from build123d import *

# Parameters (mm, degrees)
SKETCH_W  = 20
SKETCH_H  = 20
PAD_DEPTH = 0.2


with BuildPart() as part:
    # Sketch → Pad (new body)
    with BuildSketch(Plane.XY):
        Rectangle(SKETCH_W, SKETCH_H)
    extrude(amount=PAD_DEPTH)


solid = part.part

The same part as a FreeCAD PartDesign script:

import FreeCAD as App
import Part
import Sketcher
from FreeCAD import Vector
Q = App.Units.Quantity

doc = App.newDocument("Part")
body = doc.addObject("PartDesign::Body", "Body")

sketch1 = doc.addObject("Sketcher::SketchObject", "Sketch")
body.addObject(sketch1)
sketch1.AttachmentSupport = (doc.XY_Plane, [""])
sketch1.MapMode = "FlatFace"
sketch1.addGeometry([
    Part.LineSegment(Vector(-10, 10, 0), Vector(-10, -10, 0)),
    Part.LineSegment(Vector(-10, -10, 0), Vector(10, -10, 0)),
    Part.LineSegment(Vector(10, -10, 0), Vector(10, 10, 0)),
    Part.LineSegment(Vector(10, 10, 0), Vector(-10, 10, 0)),
], False)
sketch1.addConstraint([
    Sketcher.Constraint("Coincident", 0, 2, 1, 1),
    Sketcher.Constraint("Coincident", 1, 2, 2, 1),
    Sketcher.Constraint("Coincident", 2, 2, 3, 1),
    Sketcher.Constraint("Coincident", 3, 2, 0, 1),
    Sketcher.Constraint("Vertical", 0),
    Sketcher.Constraint("Horizontal", 1),
    Sketcher.Constraint("Vertical", 2),
    Sketcher.Constraint("Horizontal", 3),
    Sketcher.Constraint("Symmetric", 0, 2, 2, 2, -1, 1),
    Sketcher.Constraint("Equal", 3, 0),
    Sketcher.Constraint("DistanceX", 1, 1, 1, 2, Q("20 mm")),
])
pad1 = doc.addObject("PartDesign::Pad", "Pad")
body.addObject(pad1)
pad1.Profile = sketch1
pad1.Length = 0.2

doc.recompute()
